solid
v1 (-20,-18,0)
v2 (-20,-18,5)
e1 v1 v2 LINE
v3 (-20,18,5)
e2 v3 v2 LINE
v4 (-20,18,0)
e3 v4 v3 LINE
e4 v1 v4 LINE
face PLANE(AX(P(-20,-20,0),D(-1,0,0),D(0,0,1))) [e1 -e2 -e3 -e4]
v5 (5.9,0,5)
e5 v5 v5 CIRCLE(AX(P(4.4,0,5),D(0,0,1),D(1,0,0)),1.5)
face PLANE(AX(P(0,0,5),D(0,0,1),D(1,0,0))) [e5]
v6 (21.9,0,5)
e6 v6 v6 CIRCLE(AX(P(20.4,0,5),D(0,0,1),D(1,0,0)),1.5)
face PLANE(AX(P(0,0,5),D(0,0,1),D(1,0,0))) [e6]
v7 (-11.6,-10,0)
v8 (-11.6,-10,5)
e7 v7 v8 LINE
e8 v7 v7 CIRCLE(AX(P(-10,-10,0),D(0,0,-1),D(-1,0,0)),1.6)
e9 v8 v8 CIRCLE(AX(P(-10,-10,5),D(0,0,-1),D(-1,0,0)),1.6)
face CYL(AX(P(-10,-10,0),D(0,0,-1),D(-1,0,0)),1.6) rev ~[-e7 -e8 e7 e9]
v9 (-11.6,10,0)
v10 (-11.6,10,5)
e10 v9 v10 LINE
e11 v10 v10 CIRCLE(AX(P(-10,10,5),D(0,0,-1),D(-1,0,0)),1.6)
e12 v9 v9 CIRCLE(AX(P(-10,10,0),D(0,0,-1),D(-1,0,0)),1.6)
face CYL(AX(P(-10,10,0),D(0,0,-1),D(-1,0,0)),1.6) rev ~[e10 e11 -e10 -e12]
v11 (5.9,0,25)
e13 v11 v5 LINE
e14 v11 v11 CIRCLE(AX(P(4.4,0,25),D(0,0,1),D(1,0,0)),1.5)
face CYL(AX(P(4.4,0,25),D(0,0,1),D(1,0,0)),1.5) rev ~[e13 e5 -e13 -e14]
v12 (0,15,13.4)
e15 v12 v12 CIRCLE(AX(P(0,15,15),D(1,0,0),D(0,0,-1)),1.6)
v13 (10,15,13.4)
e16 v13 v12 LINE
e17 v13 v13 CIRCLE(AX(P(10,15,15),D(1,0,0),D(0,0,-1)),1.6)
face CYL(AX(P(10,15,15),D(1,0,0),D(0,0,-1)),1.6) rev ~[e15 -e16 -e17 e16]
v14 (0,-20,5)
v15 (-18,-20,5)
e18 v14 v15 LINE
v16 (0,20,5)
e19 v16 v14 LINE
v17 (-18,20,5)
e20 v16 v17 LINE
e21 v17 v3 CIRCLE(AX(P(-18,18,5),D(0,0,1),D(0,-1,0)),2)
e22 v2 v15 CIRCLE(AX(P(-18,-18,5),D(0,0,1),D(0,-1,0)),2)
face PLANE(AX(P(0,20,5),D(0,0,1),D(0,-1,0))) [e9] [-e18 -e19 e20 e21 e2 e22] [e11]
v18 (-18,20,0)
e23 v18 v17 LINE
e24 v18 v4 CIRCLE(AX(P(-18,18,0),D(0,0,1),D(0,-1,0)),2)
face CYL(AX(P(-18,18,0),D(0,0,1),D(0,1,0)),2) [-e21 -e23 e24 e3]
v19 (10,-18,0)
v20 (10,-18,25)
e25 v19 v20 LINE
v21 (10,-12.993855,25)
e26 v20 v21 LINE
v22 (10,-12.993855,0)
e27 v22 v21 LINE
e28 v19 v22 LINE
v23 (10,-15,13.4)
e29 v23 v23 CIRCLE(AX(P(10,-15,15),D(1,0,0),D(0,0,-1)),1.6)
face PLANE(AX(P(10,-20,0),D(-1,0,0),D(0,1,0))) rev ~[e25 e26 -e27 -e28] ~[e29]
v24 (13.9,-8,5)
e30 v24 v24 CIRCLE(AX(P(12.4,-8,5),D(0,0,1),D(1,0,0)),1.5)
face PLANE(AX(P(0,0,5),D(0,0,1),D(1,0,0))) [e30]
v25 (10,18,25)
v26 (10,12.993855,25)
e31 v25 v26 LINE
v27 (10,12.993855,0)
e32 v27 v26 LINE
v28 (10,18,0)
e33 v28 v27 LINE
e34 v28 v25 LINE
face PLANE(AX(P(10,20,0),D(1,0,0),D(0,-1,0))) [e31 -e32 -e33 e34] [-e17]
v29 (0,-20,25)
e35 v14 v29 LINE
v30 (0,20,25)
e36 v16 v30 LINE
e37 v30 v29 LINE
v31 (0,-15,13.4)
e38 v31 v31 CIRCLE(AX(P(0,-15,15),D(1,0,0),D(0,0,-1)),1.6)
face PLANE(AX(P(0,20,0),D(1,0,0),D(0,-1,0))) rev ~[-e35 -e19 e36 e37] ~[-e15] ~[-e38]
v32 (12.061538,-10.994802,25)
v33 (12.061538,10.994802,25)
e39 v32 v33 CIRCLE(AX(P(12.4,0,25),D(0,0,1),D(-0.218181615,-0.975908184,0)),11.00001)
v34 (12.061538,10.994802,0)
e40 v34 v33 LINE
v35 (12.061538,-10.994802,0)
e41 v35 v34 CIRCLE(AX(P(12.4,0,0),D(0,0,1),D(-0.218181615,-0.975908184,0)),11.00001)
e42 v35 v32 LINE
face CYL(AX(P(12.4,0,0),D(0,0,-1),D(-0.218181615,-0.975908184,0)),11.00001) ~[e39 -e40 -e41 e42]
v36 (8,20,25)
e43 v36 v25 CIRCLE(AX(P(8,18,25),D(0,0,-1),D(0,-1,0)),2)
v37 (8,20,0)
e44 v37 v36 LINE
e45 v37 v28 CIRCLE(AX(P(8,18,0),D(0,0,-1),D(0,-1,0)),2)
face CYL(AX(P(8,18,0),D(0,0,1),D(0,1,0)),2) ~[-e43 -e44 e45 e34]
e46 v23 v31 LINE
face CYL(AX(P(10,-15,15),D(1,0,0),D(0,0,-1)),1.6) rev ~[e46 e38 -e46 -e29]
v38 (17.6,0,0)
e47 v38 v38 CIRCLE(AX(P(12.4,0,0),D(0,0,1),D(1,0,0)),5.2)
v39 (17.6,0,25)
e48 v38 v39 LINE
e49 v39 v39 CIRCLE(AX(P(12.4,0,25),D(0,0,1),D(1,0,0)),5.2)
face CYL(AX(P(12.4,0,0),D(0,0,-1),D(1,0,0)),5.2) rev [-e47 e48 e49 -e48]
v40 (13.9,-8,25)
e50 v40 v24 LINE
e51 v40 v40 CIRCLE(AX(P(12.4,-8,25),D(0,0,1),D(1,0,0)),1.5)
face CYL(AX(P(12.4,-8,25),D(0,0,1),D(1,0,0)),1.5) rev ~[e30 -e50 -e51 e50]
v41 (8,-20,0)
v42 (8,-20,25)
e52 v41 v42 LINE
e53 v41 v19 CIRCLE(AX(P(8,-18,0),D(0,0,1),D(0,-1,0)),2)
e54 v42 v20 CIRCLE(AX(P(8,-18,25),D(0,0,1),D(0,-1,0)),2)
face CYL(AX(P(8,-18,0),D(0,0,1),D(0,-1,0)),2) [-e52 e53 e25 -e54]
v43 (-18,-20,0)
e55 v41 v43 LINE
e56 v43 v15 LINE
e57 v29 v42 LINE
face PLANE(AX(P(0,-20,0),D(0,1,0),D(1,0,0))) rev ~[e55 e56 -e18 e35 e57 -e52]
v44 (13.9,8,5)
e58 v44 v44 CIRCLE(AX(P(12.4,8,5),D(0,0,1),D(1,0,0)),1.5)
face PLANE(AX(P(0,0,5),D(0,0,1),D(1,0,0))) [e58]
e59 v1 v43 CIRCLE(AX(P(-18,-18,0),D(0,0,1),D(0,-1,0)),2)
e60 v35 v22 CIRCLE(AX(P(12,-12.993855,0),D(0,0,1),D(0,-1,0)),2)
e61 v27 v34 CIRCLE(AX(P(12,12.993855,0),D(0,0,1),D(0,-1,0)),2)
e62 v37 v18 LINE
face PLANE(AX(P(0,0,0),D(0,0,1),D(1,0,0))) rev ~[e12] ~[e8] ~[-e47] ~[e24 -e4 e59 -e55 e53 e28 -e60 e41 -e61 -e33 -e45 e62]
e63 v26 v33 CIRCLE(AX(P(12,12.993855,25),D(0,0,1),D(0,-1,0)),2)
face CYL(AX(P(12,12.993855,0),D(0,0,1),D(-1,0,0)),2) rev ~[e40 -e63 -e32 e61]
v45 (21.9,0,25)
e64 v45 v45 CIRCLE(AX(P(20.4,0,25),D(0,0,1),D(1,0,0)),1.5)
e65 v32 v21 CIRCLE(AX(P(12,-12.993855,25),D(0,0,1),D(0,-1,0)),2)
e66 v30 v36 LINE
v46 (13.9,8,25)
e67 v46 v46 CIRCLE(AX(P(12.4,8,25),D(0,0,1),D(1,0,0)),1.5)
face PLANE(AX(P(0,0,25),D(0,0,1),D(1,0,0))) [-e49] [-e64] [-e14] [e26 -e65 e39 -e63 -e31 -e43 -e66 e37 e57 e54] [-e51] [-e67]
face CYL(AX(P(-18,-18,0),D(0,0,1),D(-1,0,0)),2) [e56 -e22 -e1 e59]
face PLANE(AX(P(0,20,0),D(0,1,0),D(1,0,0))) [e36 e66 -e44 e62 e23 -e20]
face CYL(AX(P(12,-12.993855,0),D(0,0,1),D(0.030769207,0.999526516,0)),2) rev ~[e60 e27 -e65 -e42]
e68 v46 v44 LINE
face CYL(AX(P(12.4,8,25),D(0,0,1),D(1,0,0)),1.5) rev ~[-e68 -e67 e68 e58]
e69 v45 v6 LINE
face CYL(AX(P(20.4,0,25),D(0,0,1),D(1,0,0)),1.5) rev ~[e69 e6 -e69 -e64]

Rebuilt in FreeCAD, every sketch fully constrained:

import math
import FreeCAD as App
import Part
import Sketcher

V = App.Vector
Q = App.Units.Quantity


def edges_at(feature, points):
    """Names of the edges that pass closest to the given points."""
    edges = feature.Shape.Edges
    near = lambda p: min(range(len(edges)), key=lambda i: edges[i].distToShape(Part.Vertex(*p))[0])
    return sorted({f"Edge{near(p) + 1}" for p in points})

doc = App.newDocument("Part")
body = doc.addObject("PartDesign::Body", "Body")

# Sketch on XY plane
sketch1 = body.newObject("Sketcher::SketchObject", "Sketch")
sketch1.AttachmentSupport = (doc.getObject("XY_Plane"), [""])
sketch1.MapMode = "FlatFace"
sketch1.addGeometry([
    Part.LineSegment(V(10, 20, 0), V(0, 20, 0)),  # 0
    Part.LineSegment(V(0, 20, 0), V(0, -20, 0)),  # 1
    Part.LineSegment(V(0, -20, 0), V(10, -20, 0)),  # 2
    Part.LineSegment(V(10, -20, 0), V(10, -10.735, 0)),  # 3
    Part.ArcOfCircle(Part.Circle(V(12.4, 0, 0), V(0, 0, 1), 11.00001), math.radians(-102.602253), math.radians(102.602253)),  # 4
    Part.LineSegment(V(10, 10.735, 0), V(10, 20, 0)),  # 5
    Part.Circle(V(12.4, 0, 0), V(0, 0, 1), 5.2),  # 6
], False)
sketch1.addConstraint([
    Sketcher.Constraint("Coincident", 0, 2, 1, 1),
    Sketcher.Constraint("Coincident", 1, 2, 2, 1),
    Sketcher.Constraint("Coincident", 2, 2, 3, 1),
    Sketcher.Constraint("Coincident", 3, 2, 4, 1),
    Sketcher.Constraint("Coincident", 4, 2, 5, 1),
    Sketcher.Constraint("Coincident", 5, 2, 0, 1),
    Sketcher.Constraint("Horizontal", 0),
    Sketcher.Constraint("Vertical", 1),
    Sketcher.Constraint("Horizontal", 2),
    Sketcher.Constraint("Vertical", 3),
    Sketcher.Constraint("Vertical", 5),
    Sketcher.Constraint("Coincident", 6, 3, 4, 3),
    Sketcher.Constraint("Symmetric", 0, 2, 1, 2, -1, 1),
    Sketcher.Constraint("Symmetric", 3, 2, 4, 2, -1),
    Sketcher.Constraint("Radius", 4, Q("11 mm")),
    Sketcher.Constraint("Diameter", 6, Q("10.4 mm")),
    Sketcher.Constraint("DistanceX", 0, 2, 0, 1, Q("10 mm")),
    Sketcher.Constraint("DistanceY", 1, 2, 1, 1, Q("40 mm")),
    Sketcher.Constraint("DistanceX", -1, 1, 4, 3, Q("12.4 mm")),
])
pad1 = body.newObject("PartDesign::Pad", "Pad")
pad1.Profile = sketch1
pad1.Length = 25

# Sketch on YZ plane
sketch2 = body.newObject("Sketcher::SketchObject", "Sketch001")
sketch2.AttachmentSupport = (doc.getObject("YZ_Plane"), [""])
sketch2.MapMode = "FlatFace"
sketch2.addGeometry([
    Part.LineSegment(V(20, 0, 0), V(-20, 0, 0)),
    Part.LineSegment(V(-20, 0, 0), V(-20, 5, 0)),
    Part.LineSegment(V(-20, 5, 0), V(20, 5, 0)),
    Part.LineSegment(V(20, 5, 0), V(20, 0, 0)),
], False)
sketch2.addConstraint([
    Sketcher.Constraint("Coincident", 0, 2, 1, 1),
    Sketcher.Constraint("Coincident", 1, 2, 2, 1),
    Sketcher.Constraint("Coincident", 2, 2, 3, 1),
    Sketcher.Constraint("Coincident", 3, 2, 0, 1),
    Sketcher.Constraint("Horizontal", 0),
    Sketcher.Constraint("Vertical", 1),
    Sketcher.Constraint("Horizontal", 2),
    Sketcher.Constraint("Vertical", 3),
    Sketcher.Constraint("Symmetric", 0, 2, 3, 2, -1, 1),
    Sketcher.Constraint("DistanceY", 1, 1, 1, 2, Q("5 mm")),
    Sketcher.Constraint("DistanceX", 0, 2, 0, 1, Q("40 mm")),
])
pad2 = body.newObject("PartDesign::Pad", "Pad001")
pad2.Profile = sketch2
pad2.Length = 20
pad2.Reversed = True

# Sketch on XY plane
sketch3 = body.newObject("Sketcher::SketchObject", "Sketch002")
sketch3.AttachmentSupport = (doc.getObject("XY_Plane"), [""])
sketch3.MapMode = "FlatFace"
sketch3.addGeometry([
    Part.Circle(V(-10, -10, 0), V(0, 0, 1), 1.6),
    Part.Circle(V(-10, 10, 0), V(0, 0, 1), 1.6),
], False)
sketch3.addConstraint([
    Sketcher.Constraint("Equal", 0, 1),
    Sketcher.Constraint("Symmetric", 0, 3, 1, 3, -1),
    Sketcher.Constraint("Diameter", 0, Q("3.2 mm")),
    Sketcher.Constraint("DistanceX", 0, 3, -1, 1, Q("10 mm")),
    Sketcher.Constraint("DistanceY", 0, 3, -1, 1, Q("10 mm")),
])
pocket1 = body.newObject("PartDesign::Pocket", "Pocket")
pocket1.Profile = sketch3
pocket1.Type = "ThroughAll"
pocket1.Reversed = True
doc.recompute()

fillet = body.newObject("PartDesign::Fillet", "Fillet")
fillet.Base = (pocket1, edges_at(pocket1, [
    (10, 20, 12.5),
    (10, 10.735, 12.5),
    (10, -10.735, 12.5),
    (10, -20, 12.5),
    (-20, -20, 2.5),
    (-20, 20, 2.5),
]))
fillet.Radius = 2

# Sketch on YZ plane
sketch4 = body.newObject("Sketcher::SketchObject", "Sketch003")
sketch4.AttachmentSupport = (doc.getObject("YZ_Plane"), [""])
sketch4.MapMode = "FlatFace"
sketch4.AttachmentOffset = App.Placement(V(0, 0, 10), App.Rotation())
sketch4.addGeometry([
    Part.Circle(V(-15, 15, 0), V(0, 0, 1), 1.6),
    Part.Circle(V(15, 15, 0), V(0, 0, 1), 1.6),
], False)
sketch4.addConstraint([
    Sketcher.Constraint("Equal", 0, 1),
    Sketcher.Constraint("Symmetric", 0, 3, 1, 3, -2),
    Sketcher.Constraint("Diameter", 0, Q("3.2 mm")),
    Sketcher.Constraint("DistanceX", 0, 3, -1, 1, Q("15 mm")),
    Sketcher.Constraint("DistanceY", -1, 1, 0, 3, Q("15 mm")),
])
pocket2 = body.newObject("PartDesign::Pocket", "Pocket001")
pocket2.Profile = sketch4
pocket2.Type = "ThroughAll"

# Sketch on XY plane
sketch5 = body.newObject("Sketcher::SketchObject", "Sketch004")
sketch5.AttachmentSupport = (doc.getObject("XY_Plane"), [""])
sketch5.MapMode = "FlatFace"
sketch5.AttachmentOffset = App.Placement(V(0, 0, 25), App.Rotation())
sketch5.addGeometry([
    Part.Circle(V(4.4, 0, 0), V(0, 0, 1), 1.5),
    Part.Circle(V(12.4, -8, 0), V(0, 0, 1), 1.5),
    Part.Circle(V(20.4, 0, 0), V(0, 0, 1), 1.5),
    Part.Circle(V(12.4, 8, 0), V(0, 0, 1), 1.5),
], False)
sketch5.addConstraint([
    Sketcher.Constraint("Equal", 0, 1),
    Sketcher.Constraint("Equal", 1, 2),
    Sketcher.Constraint("Equal", 2, 3),
    Sketcher.Constraint("Symmetric", 1, 3, 3, 3, -1),
    Sketcher.Constraint("PointOnObject", 0, 3, -1),
    Sketcher.Constraint("PointOnObject", 2, 3, -1),
    Sketcher.Constraint("Diameter", 0, Q("3 mm")),
    Sketcher.Constraint("DistanceY", 1, 3, -1, 1, Q("8 mm")),
    Sketcher.Constraint("DistanceX", 0, 3, 1, 3, Q("8 mm")),
    Sketcher.Constraint("DistanceX", 1, 3, 2, 3, Q("8 mm")),
    Sketcher.Constraint("DistanceX", -1, 1, 0, 3, Q("4.4 mm")),
])
pocket3 = body.newObject("PartDesign::Pocket", "Pocket002")
pocket3.Profile = sketch5
pocket3.Length = 20

doc.recompute()
